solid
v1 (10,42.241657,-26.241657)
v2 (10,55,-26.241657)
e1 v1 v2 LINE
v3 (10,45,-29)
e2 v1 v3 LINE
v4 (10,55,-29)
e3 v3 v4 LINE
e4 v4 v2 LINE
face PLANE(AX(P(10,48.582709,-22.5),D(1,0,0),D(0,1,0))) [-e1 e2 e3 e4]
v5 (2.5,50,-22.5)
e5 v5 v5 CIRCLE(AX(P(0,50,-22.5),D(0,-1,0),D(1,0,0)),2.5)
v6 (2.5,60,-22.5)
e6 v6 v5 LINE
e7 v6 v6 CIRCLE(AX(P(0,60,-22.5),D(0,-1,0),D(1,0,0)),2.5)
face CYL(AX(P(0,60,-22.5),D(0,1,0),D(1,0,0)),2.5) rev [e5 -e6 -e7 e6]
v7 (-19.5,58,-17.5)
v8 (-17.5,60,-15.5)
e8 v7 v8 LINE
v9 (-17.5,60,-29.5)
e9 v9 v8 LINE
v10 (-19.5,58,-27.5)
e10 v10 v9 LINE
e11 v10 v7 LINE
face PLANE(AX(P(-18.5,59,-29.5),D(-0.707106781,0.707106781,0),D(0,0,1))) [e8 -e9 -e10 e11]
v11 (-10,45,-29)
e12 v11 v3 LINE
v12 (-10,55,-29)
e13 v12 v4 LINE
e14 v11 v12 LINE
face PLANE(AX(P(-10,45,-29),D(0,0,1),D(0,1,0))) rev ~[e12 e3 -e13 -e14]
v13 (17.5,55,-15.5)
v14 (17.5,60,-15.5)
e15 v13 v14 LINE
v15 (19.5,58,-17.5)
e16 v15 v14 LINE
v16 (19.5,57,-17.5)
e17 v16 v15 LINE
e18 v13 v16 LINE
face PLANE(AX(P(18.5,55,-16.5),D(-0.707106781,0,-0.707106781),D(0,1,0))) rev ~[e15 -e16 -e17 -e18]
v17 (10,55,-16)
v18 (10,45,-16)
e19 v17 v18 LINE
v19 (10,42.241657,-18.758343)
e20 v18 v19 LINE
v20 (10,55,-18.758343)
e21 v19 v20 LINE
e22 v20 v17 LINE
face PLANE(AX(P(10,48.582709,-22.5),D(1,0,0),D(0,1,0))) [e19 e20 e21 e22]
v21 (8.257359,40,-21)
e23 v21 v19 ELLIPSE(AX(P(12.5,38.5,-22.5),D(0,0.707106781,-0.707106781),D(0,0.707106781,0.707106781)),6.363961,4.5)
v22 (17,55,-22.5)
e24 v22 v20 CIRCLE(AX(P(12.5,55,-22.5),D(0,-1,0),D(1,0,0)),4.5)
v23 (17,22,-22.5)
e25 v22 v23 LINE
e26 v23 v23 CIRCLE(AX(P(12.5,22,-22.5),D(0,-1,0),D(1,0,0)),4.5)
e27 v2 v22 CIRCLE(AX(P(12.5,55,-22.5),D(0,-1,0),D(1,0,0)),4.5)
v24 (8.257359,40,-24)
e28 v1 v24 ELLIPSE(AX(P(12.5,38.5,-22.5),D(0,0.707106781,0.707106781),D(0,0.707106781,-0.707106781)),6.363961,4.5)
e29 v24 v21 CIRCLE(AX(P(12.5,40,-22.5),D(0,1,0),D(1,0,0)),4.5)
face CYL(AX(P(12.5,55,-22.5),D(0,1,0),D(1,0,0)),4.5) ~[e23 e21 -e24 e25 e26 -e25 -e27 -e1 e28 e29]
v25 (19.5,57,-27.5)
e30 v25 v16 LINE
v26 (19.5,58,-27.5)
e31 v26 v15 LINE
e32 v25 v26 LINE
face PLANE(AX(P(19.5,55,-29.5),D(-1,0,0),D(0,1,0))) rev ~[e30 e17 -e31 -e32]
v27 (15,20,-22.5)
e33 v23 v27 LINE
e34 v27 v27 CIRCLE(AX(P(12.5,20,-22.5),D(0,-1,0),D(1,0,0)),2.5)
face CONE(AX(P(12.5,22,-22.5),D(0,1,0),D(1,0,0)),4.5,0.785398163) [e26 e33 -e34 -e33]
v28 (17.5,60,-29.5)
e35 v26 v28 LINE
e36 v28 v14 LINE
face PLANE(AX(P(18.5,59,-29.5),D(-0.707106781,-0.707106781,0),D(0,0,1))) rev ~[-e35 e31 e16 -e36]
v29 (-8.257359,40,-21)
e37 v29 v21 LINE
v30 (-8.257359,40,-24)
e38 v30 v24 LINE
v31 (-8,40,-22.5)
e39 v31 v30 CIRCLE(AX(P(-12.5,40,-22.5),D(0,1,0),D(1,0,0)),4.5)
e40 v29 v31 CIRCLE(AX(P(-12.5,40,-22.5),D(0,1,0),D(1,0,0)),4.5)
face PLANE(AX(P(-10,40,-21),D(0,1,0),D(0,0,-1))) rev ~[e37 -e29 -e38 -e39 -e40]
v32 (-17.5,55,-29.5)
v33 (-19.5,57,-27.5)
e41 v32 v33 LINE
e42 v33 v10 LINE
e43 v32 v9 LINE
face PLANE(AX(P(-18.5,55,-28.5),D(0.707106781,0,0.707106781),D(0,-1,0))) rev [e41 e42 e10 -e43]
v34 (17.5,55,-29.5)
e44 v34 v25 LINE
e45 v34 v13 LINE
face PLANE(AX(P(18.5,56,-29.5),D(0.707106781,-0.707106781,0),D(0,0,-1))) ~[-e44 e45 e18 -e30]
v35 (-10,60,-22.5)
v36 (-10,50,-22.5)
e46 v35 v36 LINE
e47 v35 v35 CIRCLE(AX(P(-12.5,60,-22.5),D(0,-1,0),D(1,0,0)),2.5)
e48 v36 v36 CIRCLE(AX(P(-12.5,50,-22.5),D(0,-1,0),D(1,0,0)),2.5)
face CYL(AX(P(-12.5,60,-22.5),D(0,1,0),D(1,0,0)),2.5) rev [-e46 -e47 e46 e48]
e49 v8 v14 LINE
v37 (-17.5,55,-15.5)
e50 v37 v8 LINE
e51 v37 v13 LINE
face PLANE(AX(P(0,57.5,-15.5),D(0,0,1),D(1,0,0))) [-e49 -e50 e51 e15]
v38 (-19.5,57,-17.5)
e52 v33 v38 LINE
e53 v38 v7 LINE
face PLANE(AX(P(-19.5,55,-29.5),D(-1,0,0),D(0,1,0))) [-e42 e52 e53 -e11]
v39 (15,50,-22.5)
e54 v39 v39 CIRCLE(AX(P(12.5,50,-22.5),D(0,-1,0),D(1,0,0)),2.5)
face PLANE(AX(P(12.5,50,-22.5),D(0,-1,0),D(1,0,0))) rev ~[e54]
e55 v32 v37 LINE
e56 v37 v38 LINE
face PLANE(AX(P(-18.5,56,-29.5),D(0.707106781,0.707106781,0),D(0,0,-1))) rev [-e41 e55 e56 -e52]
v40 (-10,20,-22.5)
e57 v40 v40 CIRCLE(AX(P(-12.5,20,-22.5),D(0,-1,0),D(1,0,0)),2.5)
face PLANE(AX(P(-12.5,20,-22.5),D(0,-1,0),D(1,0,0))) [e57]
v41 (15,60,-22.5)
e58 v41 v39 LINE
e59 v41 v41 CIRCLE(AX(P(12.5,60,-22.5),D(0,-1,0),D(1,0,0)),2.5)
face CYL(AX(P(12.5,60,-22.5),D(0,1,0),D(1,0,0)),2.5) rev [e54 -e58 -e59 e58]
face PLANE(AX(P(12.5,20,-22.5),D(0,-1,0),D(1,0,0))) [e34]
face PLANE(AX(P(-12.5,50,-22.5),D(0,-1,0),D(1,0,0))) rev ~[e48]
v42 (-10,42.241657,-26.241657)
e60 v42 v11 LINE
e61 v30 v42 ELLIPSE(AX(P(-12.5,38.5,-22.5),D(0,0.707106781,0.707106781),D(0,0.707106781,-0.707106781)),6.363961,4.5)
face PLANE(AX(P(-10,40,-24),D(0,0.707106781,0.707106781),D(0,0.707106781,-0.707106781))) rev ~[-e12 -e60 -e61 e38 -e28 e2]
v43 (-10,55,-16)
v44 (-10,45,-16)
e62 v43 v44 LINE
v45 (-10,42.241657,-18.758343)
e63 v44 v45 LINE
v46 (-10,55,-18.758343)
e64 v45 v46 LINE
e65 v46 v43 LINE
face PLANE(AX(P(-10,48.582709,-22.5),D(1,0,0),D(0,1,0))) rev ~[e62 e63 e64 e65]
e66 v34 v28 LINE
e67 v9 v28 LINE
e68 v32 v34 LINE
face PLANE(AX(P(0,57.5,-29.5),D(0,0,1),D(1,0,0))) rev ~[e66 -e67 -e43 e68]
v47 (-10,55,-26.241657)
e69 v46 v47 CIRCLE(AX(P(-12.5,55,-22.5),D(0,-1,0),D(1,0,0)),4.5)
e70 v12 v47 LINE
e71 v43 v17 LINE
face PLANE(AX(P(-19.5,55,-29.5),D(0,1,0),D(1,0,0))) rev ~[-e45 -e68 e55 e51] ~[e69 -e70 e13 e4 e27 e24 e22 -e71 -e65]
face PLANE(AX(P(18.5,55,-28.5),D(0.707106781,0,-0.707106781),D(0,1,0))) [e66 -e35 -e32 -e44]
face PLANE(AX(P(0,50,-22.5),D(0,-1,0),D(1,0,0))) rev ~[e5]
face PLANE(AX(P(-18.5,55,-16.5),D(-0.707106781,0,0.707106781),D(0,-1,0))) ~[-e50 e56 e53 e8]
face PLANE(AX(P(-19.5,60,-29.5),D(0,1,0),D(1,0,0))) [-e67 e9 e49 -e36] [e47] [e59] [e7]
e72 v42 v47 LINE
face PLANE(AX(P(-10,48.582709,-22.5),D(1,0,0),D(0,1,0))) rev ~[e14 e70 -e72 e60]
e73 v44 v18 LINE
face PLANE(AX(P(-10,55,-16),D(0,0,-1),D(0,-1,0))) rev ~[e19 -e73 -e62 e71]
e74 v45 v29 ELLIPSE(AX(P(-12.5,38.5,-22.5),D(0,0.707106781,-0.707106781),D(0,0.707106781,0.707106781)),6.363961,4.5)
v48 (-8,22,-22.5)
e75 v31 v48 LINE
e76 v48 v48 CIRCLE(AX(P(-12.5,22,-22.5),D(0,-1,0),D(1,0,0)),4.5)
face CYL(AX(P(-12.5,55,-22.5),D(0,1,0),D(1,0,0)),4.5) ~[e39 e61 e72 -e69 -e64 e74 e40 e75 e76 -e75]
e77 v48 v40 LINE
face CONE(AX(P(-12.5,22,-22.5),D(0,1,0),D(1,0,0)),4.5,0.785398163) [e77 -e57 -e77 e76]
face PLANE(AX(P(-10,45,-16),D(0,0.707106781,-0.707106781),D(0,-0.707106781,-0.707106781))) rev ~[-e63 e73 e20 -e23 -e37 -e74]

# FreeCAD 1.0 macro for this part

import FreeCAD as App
import Part
import Sketcher


def edges_at(feature, points):
    """Names of the edges that pass closest to the given points."""
    edges = feature.Shape.Edges
    near = lambda p: min(range(len(edges)), key=lambda i: edges[i].distToShape(Part.Vertex(*p))[0])
    return sorted({f"Edge{near(p) + 1}" for p in points})

doc = App.newDocument("Part")
body = doc.addObject("PartDesign::Body", "Body")

# Sketch on XY plane
sketch1 = body.newObject("Sketcher::SketchObject", "Sketch")
sketch1.AttachmentSupport = (doc.getObject("XY_Plane"), [""])
sketch1.MapMode = "FlatFace"
sketch1.AttachmentOffset = App.Placement(App.Vector(0, 0, 0.5), App.Rotation())
sketch1.addGeometry(Part.LineSegment(App.Vector(-20, 55, 0), App.Vector(-20, 50, 0)), False)
sketch1.addGeometry(Part.LineSegment(App.Vector(-20, 50, 0), App.Vector(20, 50, 0)), False)
sketch1.addGeometry(Part.LineSegment(App.Vector(20, 50, 0), App.Vector(20, 55, 0)), False)
sketch1.addGeometry(Part.LineSegment(App.Vector(20, 55, 0), App.Vector(-20, 55, 0)), False)
sketch1.addConstraint(Sketcher.Constraint("Coincident", 0, 2, 1, 1))
sketch1.addConstraint(Sketcher.Constraint("Coincident", 1, 2, 2, 1))
sketch1.addConstraint(Sketcher.Constraint("Coincident", 2, 2, 3, 1))
sketch1.addConstraint(Sketcher.Constraint("Coincident", 3, 2, 0, 1))
sketch1.addConstraint(Sketcher.Constraint("Vertical", 0))
sketch1.addConstraint(Sketcher.Constraint("Horizontal", 1))
sketch1.addConstraint(Sketcher.Constraint("Vertical", 2))
sketch1.addConstraint(Sketcher.Constraint("Horizontal", 3))
sketch1.addConstraint(Sketcher.Constraint("DistanceX", 1, 1, 1, 2, 39.0))
sketch1.addConstraint(Sketcher.Constraint("DistanceY", 0, 2, 0, 1, 5.0))
sketch1.addConstraint(Sketcher.Constraint("DistanceY", -1, 1, 0, 2, 50.0))
sketch1.addConstraint(Sketcher.Constraint("DistanceX", 0, 2, -1, 1, 19.5))
pad1 = body.newObject("PartDesign::Pad", "Pad")
pad1.Profile = sketch1
pad1.Length = 14

# Sketch on YZ plane
sketch2 = body.newObject("Sketcher::SketchObject", "Sketch001")
sketch2.AttachmentSupport = (doc.getObject("YZ_Plane"), [""])
sketch2.MapMode = "FlatFace"
sketch2.AttachmentOffset = App.Placement(App.Vector(0, 0, -10), App.Rotation())
sketch2.addGeometry(Part.LineSegment(App.Vector(40, 14, 0), App.Vector(35, 9, 0)), False)
sketch2.addGeometry(Part.LineSegment(App.Vector(35, 9, 0), App.Vector(35, 6, 0)), False)
sketch2.addGeometry(Part.LineSegment(App.Vector(35, 6, 0), App.Vector(40, 1, 0)), False)
sketch2.addGeometry(Part.LineSegment(App.Vector(40, 1, 0), App.Vector(50, 1, 0)), False)
sketch2.addGeometry(Part.LineSegment(App.Vector(50, 1, 0), App.Vector(50, 14, 0)), False)
sketch2.addGeometry(Part.LineSegment(App.Vector(50, 14, 0), App.Vector(40, 14, 0)), False)
sketch2.addConstraint(Sketcher.Constraint("Coincident", 0, 2, 1, 1))
sketch2.addConstraint(Sketcher.Constraint("Coincident", 1, 2, 2, 1))
sketch2.addConstraint(Sketcher.Constraint("Coincident", 2, 2, 3, 1))
sketch2.addConstraint(Sketcher.Constraint("Coincident", 3, 2, 4, 1))
sketch2.addConstraint(Sketcher.Constraint("Coincident", 4, 2, 5, 1))
sketch2.addConstraint(Sketcher.Constraint("Coincident", 5, 2, 0, 1))
sketch2.addConstraint(Sketcher.Constraint("Vertical", 1))
sketch2.addConstraint(Sketcher.Constraint("Horizontal", 3))
sketch2.addConstraint(Sketcher.Constraint("Vertical", 4))
sketch2.addConstraint(Sketcher.Constraint("Horizontal", 5))
sketch2.addConstraint(Sketcher.Constraint("Perpendicular", 0, 2))
sketch2.addConstraint(Sketcher.Constraint("Vertical", 2, 2, 5, 2))
sketch2.addConstraint(Sketcher.Constraint("Equal", 0, 2))
sketch2.addConstraint(Sketcher.Constraint("DistanceX", 3, 1, 3, 2, 10.0))
sketch2.addConstraint(Sketcher.Constraint("DistanceY", 1, 2, 1, 1, 3.0))
sketch2.addConstraint(Sketcher.Constraint("DistanceY", 4, 1, 4, 2, 13.0))
sketch2.addConstraint(Sketcher.Constraint("DistanceX", -1, 1, 0, 2, 35.0))
sketch2.addConstraint(Sketcher.Constraint("DistanceY", -1, 1, 0, 2, 9.0))
pad2 = body.newObject("PartDesign::Pad", "Pad001")
pad2.Profile = sketch2
pad2.Length = 20

# Sketch on XZ plane
sketch3 = body.newObject("Sketcher::SketchObject", "Sketch002")
sketch3.AttachmentSupport = (doc.getObject("XZ_Plane"), [""])
sketch3.MapMode = "FlatFace"
sketch3.AttachmentOffset = App.Placement(App.Vector(0, 0, -50), App.Rotation())
sketch3.addGeometry(Part.Circle(App.Vector(-12.5, 7.5, 0), App.Vector(0, 0, 1), 4.5), False)
sketch3.addGeometry(Part.Circle(App.Vector(12.5, 7.5, 0), App.Vector(0, 0, 1), 4.5), False)
sketch3.addConstraint(Sketcher.Constraint("Equal", 0, 1))
sketch3.addConstraint(Sketcher.Constraint("Symmetric", 0, 3, 1, 3, -2))
sketch3.addConstraint(Sketcher.Constraint("Diameter", 0, 9.0))
sketch3.addConstraint(Sketcher.Constraint("DistanceX", 0, 3, 1, 3, 25.0))
sketch3.addConstraint(Sketcher.Constraint("DistanceY", -1, 1, 0, 3, 7.5))
pad3 = body.newObject("PartDesign::Pad", "Pad002")
pad3.Profile = sketch3
pad3.Length = 35
doc.recompute()

chamfer = body.newObject("PartDesign::Chamfer", "Chamfer")
chamfer.Base = (pad3, edges_at(pad3, [
    (8, 15, 7.5),
    (-17, 15, 7.5),
    (19.5, 50, 7.5),
    (19.5, 55, 7.5),
    (19.5, 52.5, 0.5),
    (19.5, 52.5, 14.5),
    (-19.5, 55, 7.5),
    (-19.5, 50, 7.5),
    (-19.5, 52.5, 0.5),
    (-19.5, 52.5, 14.5),
]))
chamfer.Size = 2

# Sketch on XZ plane
sketch4 = body.newObject("Sketcher::SketchObject", "Sketch003")
sketch4.AttachmentSupport = (doc.getObject("XZ_Plane"), [""])
sketch4.MapMode = "FlatFace"
sketch4.AttachmentOffset = App.Placement(App.Vector(0, 0, -55), App.Rotation())
sketch4.addGeometry(Part.Circle(App.Vector(-12.5, 7.5, 0), App.Vector(0, 0, 1), 2.5), False)
sketch4.addGeometry(Part.Circle(App.Vector(0, 7.5, 0), App.Vector(0, 0, 1), 2.5), False)
sketch4.addGeometry(Part.Circle(App.Vector(12.5, 7.5, 0), App.Vector(0, 0, 1), 2.5), False)
sketch4.addConstraint(Sketcher.Constraint("Equal", 0, 1))
sketch4.addConstraint(Sketcher.Constraint("Equal", 1, 2))
sketch4.addConstraint(Sketcher.Constraint("Symmetric", 0, 3, 2, 3, -2))
sketch4.addConstraint(Sketcher.Constraint("PointOnObject", 1, 3, -2))
sketch4.addConstraint(Sketcher.Constraint("Horizontal", 0, 3, 1, 3))
sketch4.addConstraint(Sketcher.Constraint("Diameter", 0, 5.0))
sketch4.addConstraint(Sketcher.Constraint("DistanceX", 0, 3, 2, 3, 25.0))
sketch4.addConstraint(Sketcher.Constraint("DistanceY", -1, 1, 0, 3, 7.5))
pocket1 = body.newObject("PartDesign::Pocket", "Pocket")
pocket1.Profile = sketch4
pocket1.Length = 10
pocket1.Reversed = True
body2 = doc.addObject("PartDesign::Body", "Body001")
doc.recompute()

body.Placement = App.Placement(App.Vector(0, 5, -30), App.Rotation(App.Vector(0, 0, 1), 0))
boolean = body2.newObject("PartDesign::Boolean", "Boolean")
boolean.Type = "Fuse"
boolean.addObjects([body])

doc.recompute()
